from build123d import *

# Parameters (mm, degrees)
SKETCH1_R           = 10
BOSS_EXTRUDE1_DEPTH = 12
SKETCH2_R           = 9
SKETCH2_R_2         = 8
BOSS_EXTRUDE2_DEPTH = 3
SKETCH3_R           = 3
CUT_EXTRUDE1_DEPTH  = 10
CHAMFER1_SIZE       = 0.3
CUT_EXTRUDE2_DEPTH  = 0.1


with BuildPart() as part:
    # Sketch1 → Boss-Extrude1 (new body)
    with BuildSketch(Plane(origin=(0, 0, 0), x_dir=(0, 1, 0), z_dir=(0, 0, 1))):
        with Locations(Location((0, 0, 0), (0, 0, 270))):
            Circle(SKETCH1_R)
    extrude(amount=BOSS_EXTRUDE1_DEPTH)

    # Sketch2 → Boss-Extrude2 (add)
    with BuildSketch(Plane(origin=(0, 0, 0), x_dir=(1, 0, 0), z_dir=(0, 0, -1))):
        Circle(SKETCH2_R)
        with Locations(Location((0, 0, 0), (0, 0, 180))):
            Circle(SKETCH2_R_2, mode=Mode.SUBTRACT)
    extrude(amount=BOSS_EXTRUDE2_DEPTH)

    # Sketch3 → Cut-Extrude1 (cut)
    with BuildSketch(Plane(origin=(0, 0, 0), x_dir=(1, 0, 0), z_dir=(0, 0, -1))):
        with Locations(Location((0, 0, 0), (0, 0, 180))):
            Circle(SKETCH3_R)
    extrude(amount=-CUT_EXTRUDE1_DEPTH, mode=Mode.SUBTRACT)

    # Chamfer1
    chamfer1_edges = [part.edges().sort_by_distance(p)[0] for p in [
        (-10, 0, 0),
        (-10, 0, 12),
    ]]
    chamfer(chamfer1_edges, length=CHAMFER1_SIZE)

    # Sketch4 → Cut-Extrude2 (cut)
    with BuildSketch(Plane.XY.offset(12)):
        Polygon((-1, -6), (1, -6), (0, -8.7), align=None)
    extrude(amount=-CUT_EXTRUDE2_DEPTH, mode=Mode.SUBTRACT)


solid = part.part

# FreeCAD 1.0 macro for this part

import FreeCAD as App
import Part
import Sketcher
Q = App.Units.Quantity


def edges_at(feature, points):
    """Names of the edges that pass closest to the given points."""
    edges = feature.Shape.Edges
    near = lambda p: min(range(len(edges)), key=lambda i: edges[i].distToShape(Part.Vertex(*p))[0])
    return sorted({f"Edge{near(p) + 1}" for p in points})


def add_polygon(sketch, points):
    """Adds a closed chain of lines whose ends are joined by coincident constraints."""
    first, n = sketch.GeometryCount, len(points)
    for a, b in zip(points, points[1:] + points[:1]):
        sketch.addGeometry(Part.LineSegment(App.Vector(*a, 0), App.Vector(*b, 0)), False)
    for i in range(n):
        sketch.addConstraint(Sketcher.Constraint("Coincident", first + i, 2, first + (i + 1) % n, 1))

doc = App.newDocument("Part")
params = doc.addObject("Spreadsheet::Sheet", "Params")
for row, (alias, value) in enumerate([
    ("sketch1_diameter", "20 mm"),
    ("pad1_length", "12 mm"),
    ("sketch2_diameter", "18 mm"),
    ("sketch2_diameter2", "16 mm"),
    ("pad2_length", "3 mm"),
    ("sketch3_diameter", "6 mm"),
    ("pocket1_length", "10 mm"),
    ("chamfer_size", "0.3 mm"),
    ("sketch4_width", "2 mm"),
    ("pocket2_length", "0.1 mm"),
], start=1):
    params.set(f"A{row}", alias)
    params.set(f"B{row}", "=" + value)
    params.setAlias(f"B{row}", alias)

body = doc.addObject("PartDesign::Body", "Body")

# Sketch on XY plane
sketch1 = body.newObject("Sketcher::SketchObject", "Sketch")
sketch1.AttachmentSupport = (doc.getObject("XY_Plane"), [""])
sketch1.MapMode = "FlatFace"
sketch1.addGeometry(Part.Circle(App.Vector(0, 0, 0), App.Vector(0, 0, 1), 10), False)
sketch1.addConstraint([
    Sketcher.Constraint("Coincident", 0, 3, -1, 1),
    Sketcher.Constraint("Diameter", 0, Q("20 mm")),
])
sketch1.setExpression("Constraints[1]", "Params.sketch1_diameter")
pad1 = body.newObject("PartDesign::Pad", "Pad")
pad1.Profile = sketch1
pad1.setExpression("Length", "Params.pad1_length")

# Sketch on XY plane
sketch2 = body.newObject("Sketcher::SketchObject", "Sketch001")
sketch2.AttachmentSupport = (doc.getObject("XY_Plane"), [""])
sketch2.MapMode = "FlatFace"
sketch2.addGeometry([
    Part.Circle(App.Vector(0, 0, 0), App.Vector(0, 0, 1), 9),
    Part.Circle(App.Vector(0, 0, 0), App.Vector(0, 0, 1), 8),
], False)
sketch2.addConstraint([
    Sketcher.Constraint("Coincident", 0, 3, -1, 1),
    Sketcher.Constraint("Coincident", 1, 3, -1, 1),
    Sketcher.Constraint("Diameter", 0, Q("18 mm")),
    Sketcher.Constraint("Diameter", 1, Q("16 mm")),
])
sketch2.setExpression("Constraints[2]", "Params.sketch2_diameter")
sketch2.setExpression("Constraints[3]", "Params.sketch2_diameter2")
pad2 = body.newObject("PartDesign::Pad", "Pad001")
pad2.Profile = sketch2
pad2.setExpression("Length", "Params.pad2_length")
pad2.Reversed = True

# Sketch on XY plane
sketch3 = body.newObject("Sketcher::SketchObject", "Sketch002")
sketch3.AttachmentSupport = (doc.getObject("XY_Plane"), [""])
sketch3.MapMode = "FlatFace"
sketch3.addGeometry(Part.Circle(App.Vector(0, 0, 0), App.Vector(0, 0, 1), 3), False)
sketch3.addConstraint([
    Sketcher.Constraint("Coincident", 0, 3, -1, 1),
    Sketcher.Constraint("Diameter", 0, Q("6 mm")),
])
sketch3.setExpression("Constraints[1]", "Params.sketch3_diameter")
pocket1 = body.newObject("PartDesign::Pocket", "Pocket")
pocket1.Profile = sketch3
pocket1.setExpression("Length", "Params.pocket1_length")
pocket1.Reversed = True
doc.recompute()

chamfer = body.newObject("PartDesign::Chamfer", "Chamfer")
chamfer.Base = (pocket1, edges_at(pocket1, [(-10, 0, 0), (-10, 0, 12)]))
chamfer.setExpression("Size", "Params.chamfer_size")

# Sketch on XY plane
sketch4 = body.newObject("Sketcher::SketchObject", "Sketch003")
sketch4.AttachmentSupport = (doc.getObject("XY_Plane"), [""])
sketch4.MapMode = "FlatFace"
sketch4.AttachmentOffset = App.Placement(App.Vector(0, 0, 12), App.Rotation())
add_polygon(sketch4, [(1, -6), (-1, -6), (0, -8.7)])  # lines 0-2
sketch4.addConstraint([
    Sketcher.Constraint("Horizontal", 0),
    Sketcher.Constraint("PointOnObject", 1, 2, -2),
    Sketcher.Constraint("Equal", 1, 2),
    Sketcher.Constraint("DistanceX", 0, 2, 0, 1, Q("2 mm")),
    Sketcher.Constraint("DistanceY", 0, 2, -1, 1, Q("6 mm")),
    Sketcher.Constraint("DistanceY", 1, 2, -1, 1, Q("8.7 mm")),
])
sketch4.setExpression("Constraints[6]", "Params.sketch4_width")
pocket2 = body.newObject("PartDesign::Pocket", "Pocket001")
pocket2.Profile = sketch4
pocket2.setExpression("Length", "Params.pocket2_length")

doc.recompute()
